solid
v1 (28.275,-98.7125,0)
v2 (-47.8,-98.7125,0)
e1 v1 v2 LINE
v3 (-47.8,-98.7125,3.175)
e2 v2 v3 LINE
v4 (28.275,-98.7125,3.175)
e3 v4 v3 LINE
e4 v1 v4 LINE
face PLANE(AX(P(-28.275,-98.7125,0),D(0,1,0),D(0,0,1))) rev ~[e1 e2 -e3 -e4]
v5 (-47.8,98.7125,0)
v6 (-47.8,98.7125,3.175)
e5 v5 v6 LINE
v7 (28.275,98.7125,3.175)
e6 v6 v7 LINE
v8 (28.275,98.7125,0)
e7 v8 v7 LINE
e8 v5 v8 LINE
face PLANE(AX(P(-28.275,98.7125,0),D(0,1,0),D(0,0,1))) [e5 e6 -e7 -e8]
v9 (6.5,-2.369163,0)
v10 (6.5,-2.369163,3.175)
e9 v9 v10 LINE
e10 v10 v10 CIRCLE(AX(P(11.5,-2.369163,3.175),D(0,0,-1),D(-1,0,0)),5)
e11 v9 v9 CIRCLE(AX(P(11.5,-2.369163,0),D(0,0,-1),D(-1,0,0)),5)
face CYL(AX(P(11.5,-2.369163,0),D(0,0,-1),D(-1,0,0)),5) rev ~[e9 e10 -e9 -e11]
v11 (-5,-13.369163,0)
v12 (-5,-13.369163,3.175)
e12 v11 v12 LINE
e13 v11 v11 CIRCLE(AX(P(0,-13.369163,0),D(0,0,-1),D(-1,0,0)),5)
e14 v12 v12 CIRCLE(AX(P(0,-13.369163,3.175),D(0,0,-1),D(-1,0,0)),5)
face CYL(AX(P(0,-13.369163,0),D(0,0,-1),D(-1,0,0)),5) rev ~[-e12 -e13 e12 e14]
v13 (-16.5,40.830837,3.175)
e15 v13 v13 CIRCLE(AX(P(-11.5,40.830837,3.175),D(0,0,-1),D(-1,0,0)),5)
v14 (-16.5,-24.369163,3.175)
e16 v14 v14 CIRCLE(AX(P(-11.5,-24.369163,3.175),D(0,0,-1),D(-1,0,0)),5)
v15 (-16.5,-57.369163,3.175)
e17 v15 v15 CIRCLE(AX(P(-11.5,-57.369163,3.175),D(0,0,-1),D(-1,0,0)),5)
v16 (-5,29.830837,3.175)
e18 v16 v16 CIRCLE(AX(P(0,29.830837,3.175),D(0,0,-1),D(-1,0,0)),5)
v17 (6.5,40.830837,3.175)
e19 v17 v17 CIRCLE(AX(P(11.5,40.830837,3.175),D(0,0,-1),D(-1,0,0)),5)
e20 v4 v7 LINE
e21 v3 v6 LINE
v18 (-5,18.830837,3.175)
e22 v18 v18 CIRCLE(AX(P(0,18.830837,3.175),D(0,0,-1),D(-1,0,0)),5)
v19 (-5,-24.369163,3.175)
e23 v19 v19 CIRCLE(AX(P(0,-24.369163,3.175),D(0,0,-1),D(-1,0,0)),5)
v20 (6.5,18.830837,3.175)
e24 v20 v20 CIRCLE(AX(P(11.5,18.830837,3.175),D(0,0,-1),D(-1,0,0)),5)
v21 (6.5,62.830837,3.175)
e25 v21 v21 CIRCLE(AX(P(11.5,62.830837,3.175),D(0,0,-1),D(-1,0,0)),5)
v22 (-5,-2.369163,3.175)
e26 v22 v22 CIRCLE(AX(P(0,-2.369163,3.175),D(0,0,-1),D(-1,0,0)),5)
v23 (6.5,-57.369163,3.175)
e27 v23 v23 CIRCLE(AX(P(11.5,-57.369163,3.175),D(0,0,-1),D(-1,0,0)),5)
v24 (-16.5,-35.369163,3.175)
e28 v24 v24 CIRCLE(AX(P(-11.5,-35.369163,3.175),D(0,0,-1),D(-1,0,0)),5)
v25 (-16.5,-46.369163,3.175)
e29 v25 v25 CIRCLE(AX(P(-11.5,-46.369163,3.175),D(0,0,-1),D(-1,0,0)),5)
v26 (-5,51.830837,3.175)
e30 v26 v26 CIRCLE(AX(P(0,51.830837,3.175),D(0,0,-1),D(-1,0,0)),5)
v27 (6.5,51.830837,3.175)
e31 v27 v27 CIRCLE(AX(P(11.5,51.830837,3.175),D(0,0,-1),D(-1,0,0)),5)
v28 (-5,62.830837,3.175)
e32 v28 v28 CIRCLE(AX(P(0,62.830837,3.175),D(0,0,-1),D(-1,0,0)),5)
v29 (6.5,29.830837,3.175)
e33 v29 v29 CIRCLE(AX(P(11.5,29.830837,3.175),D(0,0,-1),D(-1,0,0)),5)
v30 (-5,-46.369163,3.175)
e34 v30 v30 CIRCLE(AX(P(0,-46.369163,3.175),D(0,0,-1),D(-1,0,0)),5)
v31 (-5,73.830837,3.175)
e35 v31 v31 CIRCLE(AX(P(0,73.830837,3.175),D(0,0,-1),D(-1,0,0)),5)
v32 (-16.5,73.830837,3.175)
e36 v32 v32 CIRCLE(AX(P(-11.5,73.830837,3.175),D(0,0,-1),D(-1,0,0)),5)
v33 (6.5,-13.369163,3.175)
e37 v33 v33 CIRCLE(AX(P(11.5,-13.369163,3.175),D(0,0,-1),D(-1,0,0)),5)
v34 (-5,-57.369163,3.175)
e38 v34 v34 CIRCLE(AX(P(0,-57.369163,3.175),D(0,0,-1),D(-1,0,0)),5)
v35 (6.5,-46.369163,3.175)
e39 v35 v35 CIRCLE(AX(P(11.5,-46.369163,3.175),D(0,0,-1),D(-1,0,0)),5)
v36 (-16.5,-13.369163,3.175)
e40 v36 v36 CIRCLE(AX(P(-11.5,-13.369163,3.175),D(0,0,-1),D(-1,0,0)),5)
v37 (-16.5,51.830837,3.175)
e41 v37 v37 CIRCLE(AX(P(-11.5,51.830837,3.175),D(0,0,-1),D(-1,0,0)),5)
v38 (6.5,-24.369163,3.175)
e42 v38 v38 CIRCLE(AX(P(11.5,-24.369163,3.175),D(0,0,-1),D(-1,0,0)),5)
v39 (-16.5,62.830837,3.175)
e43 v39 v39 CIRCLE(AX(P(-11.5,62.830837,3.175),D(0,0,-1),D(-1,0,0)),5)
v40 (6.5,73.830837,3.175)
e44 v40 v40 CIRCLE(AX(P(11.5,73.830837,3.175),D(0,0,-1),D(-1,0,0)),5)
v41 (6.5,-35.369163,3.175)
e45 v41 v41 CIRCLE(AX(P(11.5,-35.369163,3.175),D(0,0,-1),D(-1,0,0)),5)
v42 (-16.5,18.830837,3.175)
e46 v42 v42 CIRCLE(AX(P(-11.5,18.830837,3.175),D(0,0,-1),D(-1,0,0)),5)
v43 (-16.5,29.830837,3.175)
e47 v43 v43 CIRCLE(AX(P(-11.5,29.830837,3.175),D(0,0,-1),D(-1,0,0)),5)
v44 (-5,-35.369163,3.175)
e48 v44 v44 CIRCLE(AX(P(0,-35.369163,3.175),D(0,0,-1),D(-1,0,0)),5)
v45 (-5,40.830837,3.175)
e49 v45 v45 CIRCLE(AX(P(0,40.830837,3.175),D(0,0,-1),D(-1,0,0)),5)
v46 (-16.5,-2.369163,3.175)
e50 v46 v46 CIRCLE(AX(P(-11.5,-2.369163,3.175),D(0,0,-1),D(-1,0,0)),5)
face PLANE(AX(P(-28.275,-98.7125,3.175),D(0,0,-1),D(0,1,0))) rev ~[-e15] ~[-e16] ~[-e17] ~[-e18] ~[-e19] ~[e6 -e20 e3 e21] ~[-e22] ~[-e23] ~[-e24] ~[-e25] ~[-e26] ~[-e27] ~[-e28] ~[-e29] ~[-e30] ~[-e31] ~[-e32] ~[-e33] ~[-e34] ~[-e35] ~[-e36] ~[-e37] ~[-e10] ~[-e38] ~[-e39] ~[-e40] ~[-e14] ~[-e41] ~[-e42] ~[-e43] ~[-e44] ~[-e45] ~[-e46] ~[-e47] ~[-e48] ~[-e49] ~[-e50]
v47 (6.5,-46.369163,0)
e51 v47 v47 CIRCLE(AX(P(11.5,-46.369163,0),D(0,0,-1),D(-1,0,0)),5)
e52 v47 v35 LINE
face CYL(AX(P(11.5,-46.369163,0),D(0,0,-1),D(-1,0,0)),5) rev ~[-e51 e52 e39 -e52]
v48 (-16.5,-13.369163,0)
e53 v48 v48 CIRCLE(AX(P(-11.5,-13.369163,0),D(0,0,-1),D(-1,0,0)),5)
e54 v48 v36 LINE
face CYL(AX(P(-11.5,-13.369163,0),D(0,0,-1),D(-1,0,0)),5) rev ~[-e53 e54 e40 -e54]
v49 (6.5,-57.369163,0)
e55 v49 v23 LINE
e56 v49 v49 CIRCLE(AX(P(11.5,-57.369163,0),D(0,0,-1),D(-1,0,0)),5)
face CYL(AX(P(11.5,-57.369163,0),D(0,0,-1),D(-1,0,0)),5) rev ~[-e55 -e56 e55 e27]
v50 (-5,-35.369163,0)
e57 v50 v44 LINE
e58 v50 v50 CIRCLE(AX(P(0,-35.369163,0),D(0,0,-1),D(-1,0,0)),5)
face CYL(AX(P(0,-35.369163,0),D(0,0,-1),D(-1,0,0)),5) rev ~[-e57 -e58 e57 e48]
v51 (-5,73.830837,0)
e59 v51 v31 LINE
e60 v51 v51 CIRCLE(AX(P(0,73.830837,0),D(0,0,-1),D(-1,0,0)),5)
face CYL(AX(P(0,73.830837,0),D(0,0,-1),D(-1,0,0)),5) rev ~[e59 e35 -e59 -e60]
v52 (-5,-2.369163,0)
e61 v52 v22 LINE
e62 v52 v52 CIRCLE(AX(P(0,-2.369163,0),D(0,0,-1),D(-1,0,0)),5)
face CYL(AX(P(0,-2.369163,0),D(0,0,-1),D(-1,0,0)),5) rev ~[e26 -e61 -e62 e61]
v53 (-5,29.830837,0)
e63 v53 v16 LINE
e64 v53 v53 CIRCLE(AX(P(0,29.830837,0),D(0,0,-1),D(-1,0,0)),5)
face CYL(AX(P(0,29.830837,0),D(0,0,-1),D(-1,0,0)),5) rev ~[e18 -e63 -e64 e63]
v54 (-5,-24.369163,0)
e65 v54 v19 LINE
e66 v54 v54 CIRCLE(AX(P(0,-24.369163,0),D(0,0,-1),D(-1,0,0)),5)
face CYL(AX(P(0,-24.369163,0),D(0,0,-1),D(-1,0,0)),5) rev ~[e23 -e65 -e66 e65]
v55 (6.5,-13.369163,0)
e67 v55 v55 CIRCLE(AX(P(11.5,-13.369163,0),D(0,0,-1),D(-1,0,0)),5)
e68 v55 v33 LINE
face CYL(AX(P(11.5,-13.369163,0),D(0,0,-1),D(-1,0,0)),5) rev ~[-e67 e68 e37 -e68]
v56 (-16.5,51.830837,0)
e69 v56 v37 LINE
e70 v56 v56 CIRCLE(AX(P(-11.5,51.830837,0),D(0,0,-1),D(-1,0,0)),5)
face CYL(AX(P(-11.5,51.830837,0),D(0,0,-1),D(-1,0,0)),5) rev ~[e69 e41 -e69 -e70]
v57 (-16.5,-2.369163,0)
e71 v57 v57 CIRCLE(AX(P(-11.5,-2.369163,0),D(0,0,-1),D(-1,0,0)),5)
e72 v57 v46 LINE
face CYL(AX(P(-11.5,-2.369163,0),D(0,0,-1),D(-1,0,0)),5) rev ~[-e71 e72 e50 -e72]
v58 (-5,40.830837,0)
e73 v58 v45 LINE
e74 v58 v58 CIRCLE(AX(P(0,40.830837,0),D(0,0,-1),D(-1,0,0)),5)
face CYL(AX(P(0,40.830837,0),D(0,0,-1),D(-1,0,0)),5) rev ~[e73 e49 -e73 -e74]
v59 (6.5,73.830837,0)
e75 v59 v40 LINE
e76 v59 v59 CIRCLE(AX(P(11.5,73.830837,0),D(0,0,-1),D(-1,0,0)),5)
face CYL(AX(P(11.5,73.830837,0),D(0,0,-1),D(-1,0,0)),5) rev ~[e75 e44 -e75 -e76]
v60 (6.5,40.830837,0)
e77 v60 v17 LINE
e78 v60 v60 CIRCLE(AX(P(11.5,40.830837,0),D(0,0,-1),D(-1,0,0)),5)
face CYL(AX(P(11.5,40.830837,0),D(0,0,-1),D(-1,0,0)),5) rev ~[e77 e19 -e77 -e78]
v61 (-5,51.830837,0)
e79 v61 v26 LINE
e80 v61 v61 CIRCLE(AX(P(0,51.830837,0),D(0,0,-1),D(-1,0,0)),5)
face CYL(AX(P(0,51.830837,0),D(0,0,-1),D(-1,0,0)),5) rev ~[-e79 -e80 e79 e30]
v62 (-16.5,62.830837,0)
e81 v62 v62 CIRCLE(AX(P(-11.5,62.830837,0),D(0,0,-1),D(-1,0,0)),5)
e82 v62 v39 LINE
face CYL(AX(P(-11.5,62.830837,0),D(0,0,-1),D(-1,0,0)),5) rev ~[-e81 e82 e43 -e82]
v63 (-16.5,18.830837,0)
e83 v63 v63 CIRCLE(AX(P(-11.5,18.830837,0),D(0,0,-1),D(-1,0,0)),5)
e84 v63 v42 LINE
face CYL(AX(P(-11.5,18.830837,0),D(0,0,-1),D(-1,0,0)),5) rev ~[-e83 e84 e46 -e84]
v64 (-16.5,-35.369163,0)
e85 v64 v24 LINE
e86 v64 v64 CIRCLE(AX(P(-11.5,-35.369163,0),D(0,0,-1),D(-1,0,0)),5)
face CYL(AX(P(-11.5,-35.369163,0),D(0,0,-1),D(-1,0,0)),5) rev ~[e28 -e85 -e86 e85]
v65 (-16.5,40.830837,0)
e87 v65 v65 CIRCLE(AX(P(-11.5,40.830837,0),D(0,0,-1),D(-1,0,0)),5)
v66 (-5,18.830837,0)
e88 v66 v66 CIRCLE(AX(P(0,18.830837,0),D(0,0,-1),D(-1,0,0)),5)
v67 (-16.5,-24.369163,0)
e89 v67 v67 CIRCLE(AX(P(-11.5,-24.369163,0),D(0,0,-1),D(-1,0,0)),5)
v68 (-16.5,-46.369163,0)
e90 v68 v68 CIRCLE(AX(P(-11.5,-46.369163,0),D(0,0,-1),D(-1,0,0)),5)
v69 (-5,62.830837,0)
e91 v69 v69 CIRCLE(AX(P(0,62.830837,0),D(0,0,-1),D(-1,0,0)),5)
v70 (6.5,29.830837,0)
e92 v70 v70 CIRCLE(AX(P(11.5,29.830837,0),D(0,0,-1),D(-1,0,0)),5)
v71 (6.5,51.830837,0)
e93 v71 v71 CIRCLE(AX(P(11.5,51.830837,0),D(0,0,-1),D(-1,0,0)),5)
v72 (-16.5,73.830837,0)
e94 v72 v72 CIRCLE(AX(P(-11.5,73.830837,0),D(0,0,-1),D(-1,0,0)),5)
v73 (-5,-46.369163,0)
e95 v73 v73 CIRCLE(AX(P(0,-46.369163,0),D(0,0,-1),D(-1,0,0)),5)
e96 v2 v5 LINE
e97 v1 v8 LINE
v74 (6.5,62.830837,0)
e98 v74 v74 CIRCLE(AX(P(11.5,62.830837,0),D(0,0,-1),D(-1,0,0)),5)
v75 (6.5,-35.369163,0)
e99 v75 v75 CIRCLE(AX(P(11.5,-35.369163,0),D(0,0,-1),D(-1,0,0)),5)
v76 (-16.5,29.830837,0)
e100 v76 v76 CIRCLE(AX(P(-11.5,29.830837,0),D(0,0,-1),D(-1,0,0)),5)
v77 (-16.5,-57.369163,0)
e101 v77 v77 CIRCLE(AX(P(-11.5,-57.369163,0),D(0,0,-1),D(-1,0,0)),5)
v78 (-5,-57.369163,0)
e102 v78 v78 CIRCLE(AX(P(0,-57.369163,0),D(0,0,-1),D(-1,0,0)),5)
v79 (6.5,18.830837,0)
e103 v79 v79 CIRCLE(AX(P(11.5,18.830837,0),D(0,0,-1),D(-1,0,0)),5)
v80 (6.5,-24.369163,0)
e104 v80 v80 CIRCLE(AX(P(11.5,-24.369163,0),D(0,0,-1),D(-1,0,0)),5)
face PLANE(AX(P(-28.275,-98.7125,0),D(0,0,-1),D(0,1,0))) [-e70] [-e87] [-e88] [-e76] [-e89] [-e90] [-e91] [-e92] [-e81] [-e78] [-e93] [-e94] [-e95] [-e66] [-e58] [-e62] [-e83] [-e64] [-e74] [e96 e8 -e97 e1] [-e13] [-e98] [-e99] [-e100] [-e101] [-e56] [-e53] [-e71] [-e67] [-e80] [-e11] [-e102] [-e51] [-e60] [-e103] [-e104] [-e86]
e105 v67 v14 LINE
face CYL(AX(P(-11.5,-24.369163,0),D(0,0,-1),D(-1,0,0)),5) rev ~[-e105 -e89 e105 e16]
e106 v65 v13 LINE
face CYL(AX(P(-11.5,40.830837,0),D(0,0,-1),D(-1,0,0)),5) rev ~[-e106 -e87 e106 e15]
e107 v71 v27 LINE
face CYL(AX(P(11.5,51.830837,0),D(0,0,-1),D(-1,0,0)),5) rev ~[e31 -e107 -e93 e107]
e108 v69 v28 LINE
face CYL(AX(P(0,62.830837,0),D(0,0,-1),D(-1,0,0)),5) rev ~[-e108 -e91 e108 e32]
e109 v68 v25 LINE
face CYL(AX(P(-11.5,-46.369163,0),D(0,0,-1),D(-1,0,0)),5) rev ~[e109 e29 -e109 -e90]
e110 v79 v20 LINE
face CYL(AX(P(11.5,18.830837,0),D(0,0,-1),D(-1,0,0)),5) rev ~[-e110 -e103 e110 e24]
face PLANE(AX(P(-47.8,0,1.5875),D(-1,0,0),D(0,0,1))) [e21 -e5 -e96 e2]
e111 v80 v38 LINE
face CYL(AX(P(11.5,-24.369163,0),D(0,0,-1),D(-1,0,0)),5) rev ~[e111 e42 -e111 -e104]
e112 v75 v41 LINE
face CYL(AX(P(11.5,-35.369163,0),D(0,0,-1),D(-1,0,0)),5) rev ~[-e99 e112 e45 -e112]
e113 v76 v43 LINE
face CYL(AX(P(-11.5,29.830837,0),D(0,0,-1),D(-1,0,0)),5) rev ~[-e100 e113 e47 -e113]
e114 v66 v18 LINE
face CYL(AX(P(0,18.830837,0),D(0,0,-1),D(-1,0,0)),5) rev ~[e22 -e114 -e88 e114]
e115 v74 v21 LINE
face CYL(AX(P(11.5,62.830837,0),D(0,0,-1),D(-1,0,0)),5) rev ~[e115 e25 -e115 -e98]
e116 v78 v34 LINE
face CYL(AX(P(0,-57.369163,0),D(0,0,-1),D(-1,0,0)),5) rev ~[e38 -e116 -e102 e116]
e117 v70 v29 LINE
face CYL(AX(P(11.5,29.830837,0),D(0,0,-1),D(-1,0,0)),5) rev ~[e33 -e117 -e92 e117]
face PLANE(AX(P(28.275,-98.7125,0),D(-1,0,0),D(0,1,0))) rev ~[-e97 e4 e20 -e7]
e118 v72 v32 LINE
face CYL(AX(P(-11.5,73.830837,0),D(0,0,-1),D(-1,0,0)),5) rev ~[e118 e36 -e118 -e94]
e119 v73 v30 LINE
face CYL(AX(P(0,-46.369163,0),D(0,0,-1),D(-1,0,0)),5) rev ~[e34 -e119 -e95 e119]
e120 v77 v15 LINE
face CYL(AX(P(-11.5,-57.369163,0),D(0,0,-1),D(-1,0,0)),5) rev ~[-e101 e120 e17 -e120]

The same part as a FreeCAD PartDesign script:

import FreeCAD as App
import Part
import Sketcher
Q = App.Units.Quantity

doc = App.newDocument("Part")
body = doc.addObject("PartDesign::Body", "Body")

# Sketch on XY plane
sketch1 = body.newObject("Sketcher::SketchObject", "Sketch")
sketch1.AttachmentSupport = (doc.getObject("XY_Plane"), [""])
sketch1.MapMode = "FlatFace"
sketch1.addGeometry([
    Part.LineSegment(App.Vector(-28, 99, 0), App.Vector(-28, -99, 0)),
    Part.LineSegment(App.Vector(-28, -99, 0), App.Vector(28, -99, 0)),
    Part.LineSegment(App.Vector(28, -99, 0), App.Vector(28, 99, 0)),
    Part.LineSegment(App.Vector(28, 99, 0), App.Vector(-28, 99, 0)),
], False)
sketch1.addConstraint([
    Sketcher.Constraint("Coincident", 0, 2, 1, 1),
    Sketcher.Constraint("Coincident", 1, 2, 2, 1),
    Sketcher.Constraint("Coincident", 2, 2, 3, 1),
    Sketcher.Constraint("Coincident", 3, 2, 0, 1),
    Sketcher.Constraint("Vertical", 0),
    Sketcher.Constraint("Horizontal", 1),
    Sketcher.Constraint("Vertical", 2),
    Sketcher.Constraint("Horizontal", 3),
    Sketcher.Constraint("Symmetric", 0, 2, 2, 2, -1, 1),
    Sketcher.Constraint("DistanceX", 1, 1, 1, 2, Q("56.55 mm")),
    Sketcher.Constraint("DistanceY", 0, 2, 0, 1, Q("197.425 mm")),
])
pad1 = body.newObject("PartDesign::Pad", "Pad")
pad1.Profile = sketch1
pad1.Length = 3.175

# Sketch on XY plane
sketch2 = body.newObject("Sketcher::SketchObject", "Sketch001")
sketch2.AttachmentSupport = (doc.getObject("XY_Plane"), [""])
sketch2.MapMode = "FlatFace"
sketch2.addGeometry([
    Part.Circle(App.Vector(-12, -57, 0), App.Vector(0, 0, 1), 5),  # 0
    Part.Circle(App.Vector(12, -57, 0), App.Vector(0, 0, 1), 5),  # 1
    Part.Circle(App.Vector(-12, 19, 0), App.Vector(0, 0, 1), 5),  # 2
    Part.Circle(App.Vector(0, 19, 0), App.Vector(0, 0, 1), 5),  # 3
    Part.Circle(App.Vector(12, 19, 0), App.Vector(0, 0, 1), 5),  # 4
    Part.Circle(App.Vector(0, -57, 0), App.Vector(0, 0, 1), 5),  # 5
], False)
sketch2.addConstraint([
    Sketcher.Constraint("Equal", 0, 1),
    Sketcher.Constraint("Equal", 1, 2),
    Sketcher.Constraint("Equal", 2, 3),
    Sketcher.Constraint("Equal", 3, 4),
    Sketcher.Constraint("Equal", 4, 5),
    Sketcher.Constraint("Symmetric", 0, 3, 1, 3, -2),
    Sketcher.Constraint("Symmetric", 2, 3, 4, 3, -2),
    Sketcher.Constraint("PointOnObject", 3, 3, -2),
    Sketcher.Constraint("PointOnObject", 5, 3, -2),
    Sketcher.Constraint("Horizontal", 2, 3, 3, 3),
    Sketcher.Constraint("Horizontal", 1, 3, 5, 3),
    Sketcher.Constraint("Vertical", 0, 3, 2, 3),
    Sketcher.Constraint("Diameter", 0, Q("10 mm")),
    Sketcher.Constraint("DistanceX", 0, 3, 1, 3, Q("23 mm")),
    Sketcher.Constraint("DistanceY", 0, 3, 2, 3, Q("76.2 mm")),
    Sketcher.Constraint("DistanceY", 0, 3, -1, 1, Q("57.369163 mm")),
])
pocket1 = body.newObject("PartDesign::Pocket", "Pocket")
pocket1.Profile = sketch2
pocket1.Length = 10
pocket1.Reversed = True
doc.recompute()

linearpattern = body.newObject("PartDesign::LinearPattern", "LinearPattern")
linearpattern.Originals = [pocket1]
linearpattern.Direction = (doc.getObject("Y_Axis"), [""])
linearpattern.Mode = "offset"
linearpattern.Offset = 11
linearpattern.Occurrences = 6
body.Tip = linearpattern

# Sketch on YZ plane
sketch3 = body.newObject("Sketcher::SketchObject", "Sketch002")
sketch3.AttachmentSupport = (doc.getObject("YZ_Plane"), [""])
sketch3.MapMode = "FlatFace"
sketch3.AttachmentOffset = App.Placement(App.Vector(0, 0, -28.275), App.Rotation())
sketch3.addGeometry([
    Part.LineSegment(App.Vector(98.7, 0, 0), App.Vector(-98.7, 0, 0)),
    Part.LineSegment(App.Vector(-98.7, 0, 0), App.Vector(-98.7, 3.2, 0)),
    Part.LineSegment(App.Vector(-98.7, 3.2, 0), App.Vector(98.7, 3.2, 0)),
    Part.LineSegment(App.Vector(98.7, 3.2, 0), App.Vector(98.7, 0, 0)),
], False)
sketch3.addConstraint([
    Sketcher.Constraint("Coincident", 0, 2, 1, 1),
    Sketcher.Constraint("Coincident", 1, 2, 2, 1),
    Sketcher.Constraint("Coincident", 2, 2, 3, 1),
    Sketcher.Constraint("Coincident", 3, 2, 0, 1),
    Sketcher.Constraint("Horizontal", 0),
    Sketcher.Constraint("Vertical", 1),
    Sketcher.Constraint("Horizontal", 2),
    Sketcher.Constraint("Vertical", 3),
    Sketcher.Constraint("Symmetric", 0, 2, 3, 2, -1, 1),
    Sketcher.Constraint("DistanceX", 0, 2, 0, 1, Q("197.425 mm")),
    Sketcher.Constraint("DistanceY", 1, 1, 1, 2, Q("3.175 mm")),
])
pad2 = body.newObject("PartDesign::Pad", "Pad001")
pad2.Profile = sketch3
pad2.Length = 19.525
pad2.Reversed = True

doc.recompute()
